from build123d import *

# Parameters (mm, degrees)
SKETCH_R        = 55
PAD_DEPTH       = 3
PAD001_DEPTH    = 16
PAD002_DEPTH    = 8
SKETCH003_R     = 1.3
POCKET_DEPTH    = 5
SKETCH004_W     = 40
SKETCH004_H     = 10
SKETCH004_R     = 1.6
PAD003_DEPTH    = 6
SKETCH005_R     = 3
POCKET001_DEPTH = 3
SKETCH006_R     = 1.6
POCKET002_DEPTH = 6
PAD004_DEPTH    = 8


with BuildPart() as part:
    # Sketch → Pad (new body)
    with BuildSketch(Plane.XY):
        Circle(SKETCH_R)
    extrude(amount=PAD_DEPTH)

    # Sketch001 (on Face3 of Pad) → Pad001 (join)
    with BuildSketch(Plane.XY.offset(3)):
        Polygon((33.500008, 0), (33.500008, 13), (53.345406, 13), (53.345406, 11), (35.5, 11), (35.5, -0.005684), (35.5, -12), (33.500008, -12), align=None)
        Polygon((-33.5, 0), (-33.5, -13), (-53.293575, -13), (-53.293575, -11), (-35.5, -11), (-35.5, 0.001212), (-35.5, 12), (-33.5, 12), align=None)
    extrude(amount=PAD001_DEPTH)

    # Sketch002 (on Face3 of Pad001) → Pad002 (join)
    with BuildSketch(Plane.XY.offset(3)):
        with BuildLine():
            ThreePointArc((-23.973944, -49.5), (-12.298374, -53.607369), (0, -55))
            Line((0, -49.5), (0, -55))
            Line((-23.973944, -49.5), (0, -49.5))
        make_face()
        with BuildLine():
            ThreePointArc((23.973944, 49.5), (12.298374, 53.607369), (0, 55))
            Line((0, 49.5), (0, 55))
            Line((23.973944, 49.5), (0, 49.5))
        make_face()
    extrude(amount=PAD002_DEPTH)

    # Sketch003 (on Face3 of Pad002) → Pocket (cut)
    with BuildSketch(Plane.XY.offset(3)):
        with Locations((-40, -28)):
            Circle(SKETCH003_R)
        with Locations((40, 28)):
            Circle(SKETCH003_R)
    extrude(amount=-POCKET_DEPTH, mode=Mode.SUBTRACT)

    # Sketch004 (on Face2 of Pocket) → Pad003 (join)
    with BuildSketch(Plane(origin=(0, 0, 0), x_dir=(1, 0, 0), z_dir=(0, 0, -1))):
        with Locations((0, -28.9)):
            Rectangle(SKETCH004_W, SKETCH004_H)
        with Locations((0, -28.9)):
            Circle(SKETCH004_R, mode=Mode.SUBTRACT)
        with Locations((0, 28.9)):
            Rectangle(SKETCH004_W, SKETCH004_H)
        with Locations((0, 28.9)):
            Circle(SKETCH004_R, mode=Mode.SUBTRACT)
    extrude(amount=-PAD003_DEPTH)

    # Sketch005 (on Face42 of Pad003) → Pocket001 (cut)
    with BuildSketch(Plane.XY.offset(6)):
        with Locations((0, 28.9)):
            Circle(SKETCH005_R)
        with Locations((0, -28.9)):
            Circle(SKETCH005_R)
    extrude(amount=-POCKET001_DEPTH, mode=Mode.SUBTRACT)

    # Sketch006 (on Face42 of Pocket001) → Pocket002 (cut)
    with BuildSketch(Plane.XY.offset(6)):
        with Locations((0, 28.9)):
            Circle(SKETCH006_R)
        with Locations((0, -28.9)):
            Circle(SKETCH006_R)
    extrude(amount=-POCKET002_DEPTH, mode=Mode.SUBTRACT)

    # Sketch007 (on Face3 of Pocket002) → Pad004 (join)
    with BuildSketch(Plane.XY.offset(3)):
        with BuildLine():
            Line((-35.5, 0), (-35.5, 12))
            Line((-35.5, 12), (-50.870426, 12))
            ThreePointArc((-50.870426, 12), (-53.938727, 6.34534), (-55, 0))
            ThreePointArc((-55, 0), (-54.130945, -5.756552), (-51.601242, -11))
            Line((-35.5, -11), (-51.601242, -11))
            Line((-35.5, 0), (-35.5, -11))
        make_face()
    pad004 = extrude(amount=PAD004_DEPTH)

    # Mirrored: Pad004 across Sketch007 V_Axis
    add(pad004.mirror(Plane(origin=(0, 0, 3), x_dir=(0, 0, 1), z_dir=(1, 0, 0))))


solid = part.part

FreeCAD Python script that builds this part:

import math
import FreeCAD as App
import Part
import Sketcher

doc = App.newDocument("Part")
params = doc.addObject("Spreadsheet::Sheet", "Params")
for row, (alias, value) in enumerate([
    ("sketch1_diameter", "110 mm"),
    ("pad1_length", "3 mm"),
    ("sketch2_width", "2 mm"),
    ("sketch2_height", "25 mm"),
    ("pad2_length", "16 mm"),
    ("sketch3_height", "5.5 mm"),
    ("pad3_length", "8 mm"),
    ("sketch4_diameter", "2.6 mm"),
    ("pocket1_length", "5 mm"),
    ("sketch5_diameter", "3.2 mm"),
    ("sketch5_width", "40 mm"),
    ("sketch5_height", "10 mm"),
    ("pad4_length", "6 mm"),
    ("sketch6_diameter", "6 mm"),
    ("pocket2_length", "3 mm"),
    ("sketch7_diameter", "3.2 mm"),
    ("pocket3_length", "6 mm"),
    ("sketch8_radius", "19.500002 mm"),
    ("sketch8_height", "23 mm"),
    ("pad5_length", "8 mm"),
], start=1):
    params.set(f"A{row}", alias)
    params.set(f"B{row}", "=" + value)
    params.setAlias(f"B{row}", alias)

body = doc.addObject("PartDesign::Body", "Body")

# Sketch on XY plane
sketch1 = doc.addObject("Sketcher::SketchObject", "Sketch")
body.addObject(sketch1)
sketch1.AttachmentSupport = (doc.XY_Plane, [""])
sketch1.MapMode = "FlatFace"
sketch1.addGeometry(Part.Circle(App.Vector(0, 0, 0), App.Vector(0, 0, 1), 55), False)
sketch1.addConstraint(Sketcher.Constraint("Coincident", 0, 3, -1, 1))
sketch1.addConstraint(Sketcher.Constraint("Diameter", 0, 110.0))
sketch1.setExpression("Constraints[1]", "Params.sketch1_diameter")
pad1 = doc.addObject("PartDesign::Pad", "Pad")
body.addObject(pad1)
pad1.Profile = sketch1
pad1.setExpression("Length", "Params.pad1_length")

# Sketch on XY plane
sketch2 = doc.addObject("Sketcher::SketchObject", "Sketch001")
body.addObject(sketch2)
sketch2.AttachmentSupport = (doc.XY_Plane, [""])
sketch2.MapMode = "FlatFace"
sketch2.AttachmentOffset = App.Placement(App.Vector(0, 0, 3), App.Rotation())
sketch2.addGeometry(Part.LineSegment(App.Vector(33.5, 13, 0), App.Vector(33.5, -12, 0)), False)
sketch2.addGeometry(Part.LineSegment(App.Vector(33.5, -12, 0), App.Vector(35.5, -12, 0)), False)
sketch2.addGeometry(Part.LineSegment(App.Vector(35.5, -12, 0), App.Vector(35.5, 11, 0)), False)
sketch2.addGeometry(Part.LineSegment(App.Vector(35.5, 11, 0), App.Vector(53.3, 11, 0)), False)
sketch2.addGeometry(Part.LineSegment(App.Vector(53.3, 11, 0), App.Vector(53.3, 13, 0)), False)
sketch2.addGeometry(Part.LineSegment(App.Vector(53.3, 13, 0), App.Vector(33.5, 13, 0)), False)
sketch2.addGeometry(Part.LineSegment(App.Vector(-33.5, -13, 0), App.Vector(-33.5, 12, 0)), False)
sketch2.addGeometry(Part.LineSegment(App.Vector(-33.5, 12, 0), App.Vector(-35.5, 12, 0)), False)
sketch2.addGeometry(Part.LineSegment(App.Vector(-35.5, 12, 0), App.Vector(-35.5, -11, 0)), False)
sketch2.addGeometry(Part.LineSegment(App.Vector(-35.5, -11, 0), App.Vector(-53.3, -11, 0)), False)
sketch2.addGeometry(Part.LineSegment(App.Vector(-53.3, -11, 0), App.Vector(-53.3, -13, 0)), False)
sketch2.addGeometry(Part.LineSegment(App.Vector(-53.3, -13, 0), App.Vector(-33.5, -13, 0)), False)
sketch2.addConstraint(Sketcher.Constraint("Coincident", 0, 2, 1, 1))
sketch2.addConstraint(Sketcher.Constraint("Coincident", 1, 2, 2, 1))
sketch2.addConstraint(Sketcher.Constraint("Coincident", 2, 2, 3, 1))
sketch2.addConstraint(Sketcher.Constraint("Coincident", 3, 2, 4, 1))
sketch2.addConstraint(Sketcher.Constraint("Coincident", 4, 2, 5, 1))
sketch2.addConstraint(Sketcher.Constraint("Coincident", 5, 2, 0, 1))
sketch2.addConstraint(Sketcher.Constraint("Coincident", 6, 2, 7, 1))
sketch2.addConstraint(Sketcher.Constraint("Coincident", 7, 2, 8, 1))
sketch2.addConstraint(Sketcher.Constraint("Coincident", 8, 2, 9, 1))
sketch2.addConstraint(Sketcher.Constraint("Coincident", 9, 2, 10, 1))
sketch2.addConstraint(Sketcher.Constraint("Coincident", 10, 2, 11, 1))
sketch2.addConstraint(Sketcher.Constraint("Coincident", 11, 2, 6, 1))
sketch2.addConstraint(Sketcher.Constraint("Vertical", 0))
sketch2.addConstraint(Sketcher.Constraint("Horizontal", 1))
sketch2.addConstraint(Sketcher.Constraint("Vertical", 2))
sketch2.addConstraint(Sketcher.Constraint("Horizontal", 3))
sketch2.addConstraint(Sketcher.Constraint("Vertical", 4))
sketch2.addConstraint(Sketcher.Constraint("Horizontal", 5))
sketch2.addConstraint(Sketcher.Constraint("Vertical", 6))
sketch2.addConstraint(Sketcher.Constraint("Horizontal", 7))
sketch2.addConstraint(Sketcher.Constraint("Vertical", 8))
sketch2.addConstraint(Sketcher.Constraint("Horizontal", 9))
sketch2.addConstraint(Sketcher.Constraint("Vertical", 10))
sketch2.addConstraint(Sketcher.Constraint("Horizontal", 11))
sketch2.addConstraint(Sketcher.Constraint("Symmetric", 0, 2, 6, 2, -1, 1))
sketch2.addConstraint(Sketcher.Constraint("Symmetric", 2, 2, 8, 2, -1, 1))
sketch2.addConstraint(Sketcher.Constraint("Equal", 7, 4))
sketch2.addConstraint(Sketcher.Constraint("Equal", 0, 6))
sketch2.addConstraint(Sketcher.Constraint("DistanceX", 7, 2, 7, 1, 2.0))
sketch2.addConstraint(Sketcher.Constraint("DistanceY", 0, 2, 0, 1, 25.0))
sketch2.addConstraint(Sketcher.Constraint("DistanceY", 0, 2, -1, 1, 12.0))
sketch2.addConstraint(Sketcher.Constraint("DistanceX", 6, 2, 2, 2, 69.0))
sketch2.addConstraint(Sketcher.Constraint("DistanceX", 3, 1, 3, 2, 17.845406))
sketch2.addConstraint(Sketcher.Constraint("DistanceX", 9, 2, 9, 1, 17.793575))
sketch2.setExpression("Constraints[28]", "Params.sketch2_width")
sketch2.setExpression("Constraints[29]", "Params.sketch2_height")
pad2 = doc.addObject("PartDesign::Pad", "Pad001")
body.addObject(pad2)
pad2.Profile = sketch2
pad2.setExpression("Length", "Params.pad2_length")

# Sketch on XY plane
sketch3 = doc.addObject("Sketcher::SketchObject", "Sketch002")
body.addObject(sketch3)
sketch3.AttachmentSupport = (doc.XY_Plane, [""])
sketch3.MapMode = "FlatFace"
sketch3.AttachmentOffset = App.Placement(App.Vector(0, 0, 3), App.Rotation())
sketch3.addGeometry(Part.ArcOfCircle(Part.Circle(App.Vector(0, 0, 0), App.Vector(0, 0, 1), 55), math.radians(-116), math.radians(-90)), False)
sketch3.addGeometry(Part.LineSegment(App.Vector(0, -55, 0), App.Vector(0, -50, 0)), False)
sketch3.addGeometry(Part.LineSegment(App.Vector(0, -50, 0), App.Vector(-24, -50, 0)), False)
sketch3.addGeometry(Part.ArcOfCircle(Part.Circle(App.Vector(0, 0, 0), App.Vector(0, 0, 1), 55), math.radians(64), math.radians(90)), False)
sketch3.addGeometry(Part.LineSegment(App.Vector(0, 55, 0), App.Vector(0, 50, 0)), False)
sketch3.addGeometry(Part.LineSegment(App.Vector(0, 50, 0), App.Vector(24, 50, 0)), False)
sketch3.addConstraint(Sketcher.Constraint("Coincident", 0, 2, 1, 1))
sketch3.addConstraint(Sketcher.Constraint("Coincident", 1, 2, 2, 1))
sketch3.addConstraint(Sketcher.Constraint("Coincident", 2, 2, 0, 1))
sketch3.addConstraint(Sketcher.Constraint("Coincident", 3, 2, 4, 1))
sketch3.addConstraint(Sketcher.Constraint("Coincident", 4, 2, 5, 1))
sketch3.addConstraint(Sketcher.Constraint("Coincident", 5, 2, 3, 1))
sketch3.addConstraint(Sketcher.Constraint("Vertical", 1))
sketch3.addConstraint(Sketcher.Constraint("Horizontal", 2))
sketch3.addConstraint(Sketcher.Constraint("Vertical", 4))
sketch3.addConstraint(Sketcher.Constraint("Horizontal", 5))
sketch3.addConstraint(Sketcher.Constraint("Coincident", 0, 3, -1, 1))
sketch3.addConstraint(Sketcher.Constraint("Coincident", 3, 3, -1, 1))
sketch3.addConstraint(Sketcher.Constraint("Equal", 0, 3))
sketch3.addConstraint(Sketcher.Constraint("Symmetric", 1, 2, 4, 2, -1, 1))
sketch3.addConstraint(Sketcher.Constraint("PointOnObject", 0, 2, -2))
sketch3.addConstraint(Sketcher.Constraint("DistanceY", 1, 1, 1, 2, 5.5))
sketch3.addConstraint(Sketcher.Constraint("DistanceY", 0, 2, -1, 1, 55.0))
sketch3.setExpression("Constraints[15]", "Params.sketch3_height")
pad3 = doc.addObject("PartDesign::Pad", "Pad002")
body.addObject(pad3)
pad3.Profile = sketch3
pad3.setExpression("Length", "Params.pad3_length")

# Sketch on XY plane
sketch4 = doc.addObject("Sketcher::SketchObject", "Sketch003")
body.addObject(sketch4)
sketch4.AttachmentSupport = (doc.XY_Plane, [""])
sketch4.MapMode = "FlatFace"
sketch4.AttachmentOffset = App.Placement(App.Vector(0, 0, 3), App.Rotation())
sketch4.addGeometry(Part.Circle(App.Vector(-40, -28, 0), App.Vector(0, 0, 1), 1.3), False)
sketch4.addGeometry(Part.Circle(App.Vector(40, 28, 0), App.Vector(0, 0, 1), 1.3), False)
sketch4.addConstraint(Sketcher.Constraint("Equal", 0, 1))
sketch4.addConstraint(Sketcher.Constraint("Symmetric", 0, 3, 1, 3, -1, 1))
sketch4.addConstraint(Sketcher.Constraint("Diameter", 0, 2.6))
sketch4.addConstraint(Sketcher.Constraint("DistanceX", 0, 3, -1, 1, 40.0))
sketch4.addConstraint(Sketcher.Constraint("DistanceY", 0, 3, -1, 1, 28.0))
sketch4.setExpression("Constraints[2]", "Params.sketch4_diameter")
pocket1 = doc.addObject("PartDesign::Pocket", "Pocket")
body.addObject(pocket1)
pocket1.Profile = sketch4
pocket1.setExpression("Length", "Params.pocket1_length")

# Sketch on XY plane
sketch5 = doc.addObject("Sketcher::SketchObject", "Sketch004")
body.addObject(sketch5)
sketch5.AttachmentSupport = (doc.XY_Plane, [""])
sketch5.MapMode = "FlatFace"
sketch5.addGeometry(Part.LineSegment(App.Vector(-20, 23.9, 0), App.Vector(-20, 33.9, 0)), False)
sketch5.addGeometry(Part.LineSegment(App.Vector(-20, 33.9, 0), App.Vector(20, 33.9, 0)), False)
sketch5.addGeometry(Part.LineSegment(App.Vector(20, 33.9, 0), App.Vector(20, 23.9, 0)), False)
sketch5.addGeometry(Part.LineSegment(App.Vector(20, 23.9, 0), App.Vector(-20, 23.9, 0)), False)
sketch5.addGeometry(Part.Circle(App.Vector(0, 28.9, 0), App.Vector(0, 0, 1), 1.6), False)
sketch5.addGeometry(Part.LineSegment(App.Vector(-20, -33.9, 0), App.Vector(-20, -23.9, 0)), False)
sketch5.addGeometry(Part.LineSegment(App.Vector(-20, -23.9, 0), App.Vector(20, -23.9, 0)), False)
sketch5.addGeometry(Part.LineSegment(App.Vector(20, -23.9, 0), App.Vector(20, -33.9, 0)), False)
sketch5.addGeometry(Part.LineSegment(App.Vector(20, -33.9, 0), App.Vector(-20, -33.9, 0)), False)
sketch5.addGeometry(Part.Circle(App.Vector(0, -28.9, 0), App.Vector(0, 0, 1), 1.6), False)
sketch5.addConstraint(Sketcher.Constraint("Coincident", 0, 2, 1, 1))
sketch5.addConstraint(Sketcher.Constraint("Coincident", 1, 2, 2, 1))
sketch5.addConstraint(Sketcher.Constraint("Coincident", 2, 2, 3, 1))
sketch5.addConstraint(Sketcher.Constraint("Coincident", 3, 2, 0, 1))
sketch5.addConstraint(Sketcher.Constraint("Coincident", 5, 2, 6, 1))
sketch5.addConstraint(Sketcher.Constraint("Coincident", 6, 2, 7, 1))
sketch5.addConstraint(Sketcher.Constraint("Coincident", 7, 2, 8, 1))
sketch5.addConstraint(Sketcher.Constraint("Coincident", 8, 2, 5, 1))
sketch5.addConstraint(Sketcher.Constraint("Vertical", 0))
sketch5.addConstraint(Sketcher.Constraint("Horizontal", 1))
sketch5.addConstraint(Sketcher.Constraint("Vertical", 2))
sketch5.addConstraint(Sketcher.Constraint("Horizontal", 3))
sketch5.addConstraint(Sketcher.Constraint("Vertical", 5))
sketch5.addConstraint(Sketcher.Constraint("Horizontal", 6))
sketch5.addConstraint(Sketcher.Constraint("Vertical", 7))
sketch5.addConstraint(Sketcher.Constraint("Horizontal", 8))
sketch5.addConstraint(Sketcher.Constraint("Equal", 4, 9))
sketch5.addConstraint(Sketcher.Constraint("Symmetric", 4, 3, 9, 3, -1, 1))
sketch5.addConstraint(Sketcher.Constraint("Symmetric", 2, 2, 5, 2, -1, 1))
sketch5.addConstraint(Sketcher.Constraint("Symmetric", 0, 2, 7, 2, -1, 1))
sketch5.addConstraint(Sketcher.Constraint("PointOnObject", 4, 3, -2))
sketch5.addConstraint(Sketcher.Constraint("Vertical", 3, 2, 5, 2))
sketch5.addConstraint(Sketcher.Constraint("Diameter", 4, 3.2))
sketch5.addConstraint(Sketcher.Constraint("DistanceX", 1, 1, 1, 2, 40.0))
sketch5.addConstraint(Sketcher.Constraint("DistanceY", 0, 1, 0, 2, 10.0))
sketch5.addConstraint(Sketcher.Constraint("DistanceY", 4, 3, 0, 2, 5.0))
sketch5.addConstraint(Sketcher.Constraint("DistanceY", -1, 1, 4, 3, 28.9))
sketch5.setExpression("Constraints[22]", "Params.sketch5_diameter")
sketch5.setExpression("Constraints[23]", "Params.sketch5_width")
sketch5.setExpression("Constraints[24]", "Params.sketch5_height")
pad4 = doc.addObject("PartDesign::Pad", "Pad003")
body.addObject(pad4)
pad4.Profile = sketch5
pad4.setExpression("Length", "Params.pad4_length")

# Sketch on XY plane
sketch6 = doc.addObject("Sketcher::SketchObject", "Sketch005")
body.addObject(sketch6)
sketch6.AttachmentSupport = (doc.XY_Plane, [""])
sketch6.MapMode = "FlatFace"
sketch6.AttachmentOffset = App.Placement(App.Vector(0, 0, 6), App.Rotation())
sketch6.addGeometry(Part.Circle(App.Vector(0, 28.9, 0), App.Vector(0, 0, 1), 3), False)
sketch6.addGeometry(Part.Circle(App.Vector(0, -28.9, 0), App.Vector(0, 0, 1), 3), False)
sketch6.addConstraint(Sketcher.Constraint("Equal", 0, 1))
sketch6.addConstraint(Sketcher.Constraint("Symmetric", 0, 3, 1, 3, -1, 1))
sketch6.addConstraint(Sketcher.Constraint("PointOnObject", 0, 3, -2))
sketch6.addConstraint(Sketcher.Constraint("Diameter", 0, 6.0))
sketch6.addConstraint(Sketcher.Constraint("DistanceY", -1, 1, 0, 3, 28.9))
sketch6.setExpression("Constraints[3]", "Params.sketch6_diameter")
pocket2 = doc.addObject("PartDesign::Pocket", "Pocket001")
body.addObject(pocket2)
pocket2.Profile = sketch6
pocket2.setExpression("Length", "Params.pocket2_length")

# Sketch on XY plane
sketch7 = doc.addObject("Sketcher::SketchObject", "Sketch006")
body.addObject(sketch7)
sketch7.AttachmentSupport = (doc.XY_Plane, [""])
sketch7.MapMode = "FlatFace"
sketch7.AttachmentOffset = App.Placement(App.Vector(0, 0, 6), App.Rotation())
sketch7.addGeometry(Part.Circle(App.Vector(0, 28.9, 0), App.Vector(0, 0, 1), 1.6), False)
sketch7.addGeometry(Part.Circle(App.Vector(0, -28.9, 0), App.Vector(0, 0, 1), 1.6), False)
sketch7.addConstraint(Sketcher.Constraint("Equal", 0, 1))
sketch7.addConstraint(Sketcher.Constraint("Symmetric", 0, 3, 1, 3, -1, 1))
sketch7.addConstraint(Sketcher.Constraint("PointOnObject", 0, 3, -2))
sketch7.addConstraint(Sketcher.Constraint("Diameter", 0, 3.2))
sketch7.addConstraint(Sketcher.Constraint("DistanceY", -1, 1, 0, 3, 28.9))
sketch7.setExpression("Constraints[3]", "Params.sketch7_diameter")
pocket3 = doc.addObject("PartDesign::Pocket", "Pocket002")
body.addObject(pocket3)
pocket3.Profile = sketch7
pocket3.setExpression("Length", "Params.pocket3_length")

# Sketch on XY plane
sketch8 = doc.addObject("Sketcher::SketchObject", "Sketch007")
body.addObject(sketch8)
sketch8.AttachmentSupport = (doc.XY_Plane, [""])
sketch8.MapMode = "FlatFace"
sketch8.AttachmentOffset = App.Placement(App.Vector(0, 0, 3), App.Rotation())
sketch8.addGeometry(Part.LineSegment(App.Vector(-36, 12, 0), App.Vector(-51, 12, 0)), False)
sketch8.addGeometry(Part.ArcOfCircle(Part.Circle(App.Vector(-35, 0, 0), App.Vector(0, 0, 1), 20), math.radians(142), math.radians(180)), False)
sketch8.addGeometry(Part.ArcOfCircle(Part.Circle(App.Vector(-36, 0, 0), App.Vector(0, 0, 1), 19), math.radians(180), math.radians(214)), False)
sketch8.addGeometry(Part.LineSegment(App.Vector(-52, -11, 0), App.Vector(-36, -11, 0)), False)
sketch8.addGeometry(Part.LineSegment(App.Vector(-36, -11, 0), App.Vector(-36, 12, 0)), False)
sketch8.addConstraint(Sketcher.Constraint("Coincident", 0, 2, 1, 1))
sketch8.addConstraint(Sketcher.Constraint("Tangent", 1, 2, 2, 1))
sketch8.addConstraint(Sketcher.Constraint("Coincident", 2, 2, 3, 1))
sketch8.addConstraint(Sketcher.Constraint("Coincident", 3, 2, 4, 1))
sketch8.addConstraint(Sketcher.Constraint("Coincident", 4, 2, 0, 1))
sketch8.addConstraint(Sketcher.Constraint("Horizontal", 0))
sketch8.addConstraint(Sketcher.Constraint("Horizontal", 3))
sketch8.addConstraint(Sketcher.Constraint("Vertical", 4))
sketch8.addConstraint(Sketcher.Constraint("PointOnObject", 1, 3, -1))
sketch8.addConstraint(Sketcher.Constraint("PointOnObject", 1, 2, -1))
sketch8.addConstraint(Sketcher.Constraint("Vertical", 1, 3, 3, 2))
sketch8.addConstraint(Sketcher.Constraint("Radius", 1, 19.500002))
sketch8.addConstraint(Sketcher.Constraint("DistanceY", 4, 1, 4, 2, 23.0))
sketch8.addConstraint(Sketcher.Constraint("DistanceY", -1, 1, 0, 2, 12.0))
sketch8.addConstraint(Sketcher.Constraint("DistanceX", 1, 2, -1, 1, 55.0))
sketch8.addConstraint(Sketcher.Constraint("Radius", 2, 19.499997))
sketch8.setExpression("Constraints[11]", "Params.sketch8_radius")
sketch8.setExpression("Constraints[12]", "Params.sketch8_height")
pad5 = doc.addObject("PartDesign::Pad", "Pad004")
body.addObject(pad5)
pad5.Profile = sketch8
pad5.setExpression("Length", "Params.pad5_length")
doc.recompute()

mirrored = doc.addObject("PartDesign::Mirrored", "Mirrored")
body.addObject(mirrored)
mirrored.Originals = [pad5]
mirrored.MirrorPlane = (doc.YZ_Plane, [""])
body.Tip = mirrored

doc.recompute()
